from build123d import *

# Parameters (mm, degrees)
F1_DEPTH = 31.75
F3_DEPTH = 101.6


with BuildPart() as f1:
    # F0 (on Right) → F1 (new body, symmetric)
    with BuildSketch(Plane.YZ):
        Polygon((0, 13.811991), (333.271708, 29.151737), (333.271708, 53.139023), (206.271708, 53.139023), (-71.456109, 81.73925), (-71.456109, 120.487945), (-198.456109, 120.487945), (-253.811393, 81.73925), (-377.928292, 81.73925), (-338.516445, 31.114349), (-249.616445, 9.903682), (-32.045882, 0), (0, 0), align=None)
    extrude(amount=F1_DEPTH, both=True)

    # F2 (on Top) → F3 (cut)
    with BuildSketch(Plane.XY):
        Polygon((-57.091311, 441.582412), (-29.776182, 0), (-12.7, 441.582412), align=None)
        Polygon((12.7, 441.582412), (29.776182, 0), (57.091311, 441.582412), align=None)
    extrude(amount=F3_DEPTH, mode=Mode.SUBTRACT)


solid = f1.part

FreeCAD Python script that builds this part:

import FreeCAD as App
import Part
import Sketcher

V = App.Vector
Q = App.Units.Quantity


def add_polygon(sketch, points):
    """Adds a closed chain of lines whose ends are joined by coincident constraints."""
    first, n = sketch.GeometryCount, len(points)
    for a, b in zip(points, points[1:] + points[:1]):
        sketch.addGeometry(Part.LineSegment(App.Vector(*a, 0), App.Vector(*b, 0)), False)
    for i in range(n):
        sketch.addConstraint(Sketcher.Constraint("Coincident", first + i, 2, first + (i + 1) % n, 1))

doc = App.newDocument("Part")
body = doc.addObject("PartDesign::Body", "Body")

# Sketch on YZ plane
sketch1 = body.newObject("Sketcher::SketchObject", "Sketch")
sketch1.AttachmentSupport = (doc.getObject("YZ_Plane"), [""])
sketch1.MapMode = "FlatFace"
add_polygon(sketch1, [(0, 14), (333, 29), (333, 53), (206, 53), (-71, 82), (-71, 120), (-198, 120), (-254, 82), (-378, 82), (-339, 31), (-250, 10), (-32, 0), (0, 0)])  # lines 0-12
sketch1.addConstraint(Sketcher.Constraint("Vertical", 1))
sketch1.addConstraint(Sketcher.Constraint("Horizontal", 2))
sketch1.addConstraint(Sketcher.Constraint("Vertical", 4))
sketch1.addConstraint(Sketcher.Constraint("Horizontal", 5))
sketch1.addConstraint(Sketcher.Constraint("Horizontal", 7))
sketch1.addConstraint(Sketcher.Constraint("Horizontal", 11))
sketch1.addConstraint(Sketcher.Constraint("Vertical", 12))
sketch1.addConstraint(Sketcher.Constraint("Coincident", 11, 2, -1, 1))
sketch1.addConstraint(Sketcher.Constraint("Horizontal", 3, 2, 6, 2))
sketch1.addConstraint(Sketcher.Constraint("Equal", 2, 5))
sketch1.addConstraint(Sketcher.Constraint("DistanceX", 2, 2, 2, 1, Q("5 in")))
sketch1.addConstraint(Sketcher.Constraint("DistanceX", 7, 2, 2, 2, Q("23 in")))
sketch1.addConstraint(Sketcher.Constraint("DistanceX", 8, 2, 9, 2, Q("3.5 in")))
sketch1.addConstraint(Sketcher.Constraint("DistanceX", 7, 2, 7, 1, 124.116899))
sketch1.addConstraint(Sketcher.Constraint("DistanceY", 12, 1, 12, 2, 13.811991))
sketch1.addConstraint(Sketcher.Constraint("DistanceY", 8, 2, 7, 2, 50.624901))
sketch1.addConstraint(Sketcher.Constraint("Distance", 0, 333.624548))
sketch1.addConstraint(Sketcher.Constraint("Distance", 3, 279.19655))
sketch1.addConstraint(Sketcher.Constraint("Distance", 8, 64.157418))
sketch1.addConstraint(Sketcher.Constraint("Distance", 9, 91.395308))
sketch1.addConstraint(Sketcher.Constraint("Distance", 10, 217.795851))
sketch1.addConstraint(Sketcher.Constraint("DistanceX", 11, 1, 11, 2, 32.045882))
sketch1.addConstraint(Sketcher.Constraint("DistanceY", 1, 1, 1, 2, 23.987286))
sketch1.addConstraint(Sketcher.Constraint("DistanceY", 4, 1, 4, 2, 38.748695))
sketch1.addConstraint(Sketcher.Constraint("DistanceX", -1, 1, 0, 2, 333.271708))
pad1 = body.newObject("PartDesign::Pad", "Pad")
pad1.Profile = sketch1
pad1.Length = Q("2.5 in")
pad1.Midplane = True

# Sketch on XY plane
sketch2 = body.newObject("Sketcher::SketchObject", "Sketch001")
sketch2.AttachmentSupport = (doc.getObject("XY_Plane"), [""])
sketch2.MapMode = "FlatFace"
add_polygon(sketch2, [(-57, 442), (-30, 0), (-13, 442)])  # lines 0-2
add_polygon(sketch2, [(13, 442), (30, 0), (57, 442)])  # lines 3-5
sketch2.addConstraint(Sketcher.Constraint("Horizontal", 2))
sketch2.addConstraint(Sketcher.Constraint("Horizontal", 5))
sketch2.addConstraint(Sketcher.Constraint("Symmetric", 0, 2, 3, 2, -1, 1))
sketch2.addConstraint(Sketcher.Constraint("Symmetric", 2, 2, 4, 2, -2))
sketch2.addConstraint(Sketcher.Constraint("PointOnObject", 0, 2, -1))
sketch2.addConstraint(Sketcher.Constraint("Equal", 2, 5))
sketch2.addConstraint(Sketcher.Constraint("DistanceX", 1, 2, 5, 2, Q("1 in")))
sketch2.addConstraint(Sketcher.Constraint("DistanceX", 2, 2, 2, 1, 44.391311))
sketch2.addConstraint(Sketcher.Constraint("Distance", 1, 441.91246))
sketch2.addConstraint(Sketcher.Constraint("DistanceX", 0, 2, -1, 1, 29.776182))
pocket1 = body.newObject("PartDesign::Pocket", "Pocket")
pocket1.Profile = sketch2
pocket1.Length = Q("4 in")
pocket1.Reversed = True

doc.recompute()
